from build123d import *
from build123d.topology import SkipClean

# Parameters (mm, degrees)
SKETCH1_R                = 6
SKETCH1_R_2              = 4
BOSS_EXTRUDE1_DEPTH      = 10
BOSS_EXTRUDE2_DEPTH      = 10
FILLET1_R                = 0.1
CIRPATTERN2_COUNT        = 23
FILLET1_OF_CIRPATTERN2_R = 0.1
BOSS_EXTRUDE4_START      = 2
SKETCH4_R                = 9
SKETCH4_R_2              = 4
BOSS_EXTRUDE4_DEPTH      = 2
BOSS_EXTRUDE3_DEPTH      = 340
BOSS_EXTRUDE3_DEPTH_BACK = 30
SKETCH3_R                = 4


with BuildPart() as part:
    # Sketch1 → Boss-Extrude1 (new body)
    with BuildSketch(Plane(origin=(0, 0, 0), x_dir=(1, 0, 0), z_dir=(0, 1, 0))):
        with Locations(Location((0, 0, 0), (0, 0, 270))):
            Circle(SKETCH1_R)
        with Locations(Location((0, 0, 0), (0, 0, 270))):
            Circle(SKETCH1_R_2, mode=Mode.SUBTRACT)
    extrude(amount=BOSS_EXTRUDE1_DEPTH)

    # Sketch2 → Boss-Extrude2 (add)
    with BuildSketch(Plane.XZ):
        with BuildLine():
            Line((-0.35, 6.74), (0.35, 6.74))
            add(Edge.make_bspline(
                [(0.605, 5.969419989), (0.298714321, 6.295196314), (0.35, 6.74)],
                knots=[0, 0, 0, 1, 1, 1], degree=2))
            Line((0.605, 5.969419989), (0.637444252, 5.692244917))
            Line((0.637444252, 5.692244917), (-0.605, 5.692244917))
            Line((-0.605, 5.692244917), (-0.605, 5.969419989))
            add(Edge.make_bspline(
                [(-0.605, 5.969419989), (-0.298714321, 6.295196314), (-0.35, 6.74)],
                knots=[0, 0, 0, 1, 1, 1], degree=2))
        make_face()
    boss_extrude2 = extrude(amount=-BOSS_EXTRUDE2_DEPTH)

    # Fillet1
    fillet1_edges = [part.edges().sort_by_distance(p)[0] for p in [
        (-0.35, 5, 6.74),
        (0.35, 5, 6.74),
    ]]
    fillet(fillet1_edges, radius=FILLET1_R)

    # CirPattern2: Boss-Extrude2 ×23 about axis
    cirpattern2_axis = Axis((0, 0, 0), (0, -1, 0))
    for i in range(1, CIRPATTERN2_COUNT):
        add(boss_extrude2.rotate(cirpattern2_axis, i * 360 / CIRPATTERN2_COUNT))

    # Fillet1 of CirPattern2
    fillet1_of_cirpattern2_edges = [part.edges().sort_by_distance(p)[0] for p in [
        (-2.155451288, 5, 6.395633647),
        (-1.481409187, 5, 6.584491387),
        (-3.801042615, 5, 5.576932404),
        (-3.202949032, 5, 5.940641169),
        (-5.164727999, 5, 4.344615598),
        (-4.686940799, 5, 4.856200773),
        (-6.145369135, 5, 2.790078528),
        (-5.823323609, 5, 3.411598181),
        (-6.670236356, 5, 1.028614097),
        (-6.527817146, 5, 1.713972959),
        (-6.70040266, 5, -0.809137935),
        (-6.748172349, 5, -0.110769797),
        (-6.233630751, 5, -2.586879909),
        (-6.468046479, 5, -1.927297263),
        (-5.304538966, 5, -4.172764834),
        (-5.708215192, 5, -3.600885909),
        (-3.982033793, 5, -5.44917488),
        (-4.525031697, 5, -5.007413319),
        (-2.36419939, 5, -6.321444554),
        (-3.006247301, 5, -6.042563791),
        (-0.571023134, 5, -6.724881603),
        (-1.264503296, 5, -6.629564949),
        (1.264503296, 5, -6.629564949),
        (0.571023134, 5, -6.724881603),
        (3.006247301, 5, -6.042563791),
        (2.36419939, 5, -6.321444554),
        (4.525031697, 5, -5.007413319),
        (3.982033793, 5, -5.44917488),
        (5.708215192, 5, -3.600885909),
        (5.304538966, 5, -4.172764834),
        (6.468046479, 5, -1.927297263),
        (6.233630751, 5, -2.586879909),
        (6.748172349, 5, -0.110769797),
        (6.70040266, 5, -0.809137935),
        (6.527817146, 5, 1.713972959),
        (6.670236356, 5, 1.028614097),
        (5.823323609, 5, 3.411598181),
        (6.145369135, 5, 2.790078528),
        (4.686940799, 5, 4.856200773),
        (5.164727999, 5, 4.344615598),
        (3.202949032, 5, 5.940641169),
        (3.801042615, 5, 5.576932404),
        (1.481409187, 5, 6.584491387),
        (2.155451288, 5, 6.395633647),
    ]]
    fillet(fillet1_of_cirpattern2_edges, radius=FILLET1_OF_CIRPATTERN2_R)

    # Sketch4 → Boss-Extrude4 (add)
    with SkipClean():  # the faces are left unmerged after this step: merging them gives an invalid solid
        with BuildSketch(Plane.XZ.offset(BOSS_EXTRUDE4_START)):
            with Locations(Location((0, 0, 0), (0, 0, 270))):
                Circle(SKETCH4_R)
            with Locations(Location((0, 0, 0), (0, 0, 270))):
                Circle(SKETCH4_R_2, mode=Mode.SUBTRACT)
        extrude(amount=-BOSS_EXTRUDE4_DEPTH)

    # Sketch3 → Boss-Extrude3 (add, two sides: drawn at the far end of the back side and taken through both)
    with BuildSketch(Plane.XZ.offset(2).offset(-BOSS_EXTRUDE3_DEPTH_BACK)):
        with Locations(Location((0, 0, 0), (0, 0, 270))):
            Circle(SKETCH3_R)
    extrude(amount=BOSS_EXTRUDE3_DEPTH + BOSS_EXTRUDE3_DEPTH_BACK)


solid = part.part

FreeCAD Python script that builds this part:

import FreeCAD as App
import Part
import Sketcher


def edges_at(feature, points):
    """Names of the edges that pass closest to the given points."""
    edges = feature.Shape.Edges
    near = lambda p: min(range(len(edges)), key=lambda i: edges[i].distToShape(Part.Vertex(*p))[0])
    return sorted({f"Edge{near(p) + 1}" for p in points})

doc = App.newDocument("Part")
params = doc.addObject("Spreadsheet::Sheet", "Params")
for row, (alias, value) in enumerate([
    ("sketch1_diameter", "12 mm"),
    ("sketch1_diameter2", "8 mm"),
    ("pad1_length", "10 mm"),
    ("pad2_length", "10 mm"),
    ("fillet_radius", "0.1 mm"),
    ("fillet2_radius", "0.1 mm"),
    ("sketch3_diameter", "18 mm"),
    ("sketch3_diameter2", "8 mm"),
    ("pad3_length", "2 mm"),
    ("sketch4_diameter", "8 mm"),
    ("pad4_length", "340 mm"),
    ("pad4_length2", "30 mm"),
], start=1):
    params.set(f"A{row}", alias)
    params.set(f"B{row}", "=" + value)
    params.setAlias(f"B{row}", alias)

body = doc.addObject("PartDesign::Body", "Body")

# Sketch on XZ plane
sketch1 = doc.addObject("Sketcher::SketchObject", "Sketch")
body.addObject(sketch1)
sketch1.AttachmentSupport = (doc.XZ_Plane, [""])
sketch1.MapMode = "FlatFace"
sketch1.addGeometry(Part.Circle(App.Vector(0, 0, 0), App.Vector(0, 0, 1), 6), False)
sketch1.addGeometry(Part.Circle(App.Vector(0, 0, 0), App.Vector(0, 0, 1), 4), False)
sketch1.addConstraint(Sketcher.Constraint("Coincident", 0, 3, -1, 1))
sketch1.addConstraint(Sketcher.Constraint("Coincident", 1, 3, -1, 1))
sketch1.addConstraint(Sketcher.Constraint("Diameter", 0, 12.0))
sketch1.addConstraint(Sketcher.Constraint("Diameter", 1, 8.0))
sketch1.setExpression("Constraints[2]", "Params.sketch1_diameter")
sketch1.setExpression("Constraints[3]", "Params.sketch1_diameter2")
pad1 = doc.addObject("PartDesign::Pad", "Pad")
body.addObject(pad1)
pad1.Profile = sketch1
pad1.setExpression("Length", "Params.pad1_length")
pad1.Reversed = True

# Sketch on XZ plane
sketch2 = doc.addObject("Sketcher::SketchObject", "Sketch001")
body.addObject(sketch2)
sketch2.AttachmentSupport = (doc.XZ_Plane, [""])
sketch2.MapMode = "FlatFace"
sketch2.addGeometry(Part.LineSegment(App.Vector(0.35, 6.74, 0), App.Vector(-0.35, 6.74, 0)), False)
sketch2.addGeometry(Part.BSplineCurve([App.Vector(-0.605, 5.96942, 0), App.Vector(-0.298714, 6.295196, 0), App.Vector(-0.35, 6.74, 0)], [3, 3], [0, 1], False, 2, [1, 1, 1], False), False)
sketch2.addGeometry(Part.LineSegment(App.Vector(-0.605, 5.96942, 0), App.Vector(-0.605, 5.692245, 0)), False)
sketch2.addGeometry(Part.LineSegment(App.Vector(-0.605, 5.692245, 0), App.Vector(0.637444, 5.692245, 0)), False)
sketch2.addGeometry(Part.LineSegment(App.Vector(0.637444, 5.692245, 0), App.Vector(0.605, 5.96942, 0)), False)
sketch2.addGeometry(Part.BSplineCurve([App.Vector(0.605, 5.96942, 0), App.Vector(0.298714, 6.295196, 0), App.Vector(0.35, 6.74, 0)], [3, 3], [0, 1], False, 2, [1, 1, 1], False), False)
sketch2.addConstraint(Sketcher.Constraint("Block", 1))
sketch2.addConstraint(Sketcher.Constraint("Block", 5))
sketch2.addConstraint(Sketcher.Constraint("Coincident", 0, 2, 1, 2))
sketch2.addConstraint(Sketcher.Constraint("Coincident", 1, 1, 2, 1))
sketch2.addConstraint(Sketcher.Constraint("Coincident", 2, 2, 3, 1))
sketch2.addConstraint(Sketcher.Constraint("Coincident", 3, 2, 4, 1))
sketch2.addConstraint(Sketcher.Constraint("Coincident", 4, 2, 5, 1))
sketch2.addConstraint(Sketcher.Constraint("Coincident", 5, 2, 0, 1))
sketch2.addConstraint(Sketcher.Constraint("Vertical", 2))
sketch2.addConstraint(Sketcher.Constraint("Horizontal", 3))
sketch2.addConstraint(Sketcher.Constraint("DistanceX", 3, 1, 3, 2, 1.242444))
sketch2.addConstraint(Sketcher.Constraint("DistanceY", 2, 2, 2, 1, 0.277175))
pad2 = doc.addObject("PartDesign::Pad", "Pad001")
body.addObject(pad2)
pad2.Profile = sketch2
pad2.setExpression("Length", "Params.pad2_length")
pad2.Reversed = True
doc.recompute()

fillet = doc.addObject("PartDesign::Fillet", "Fillet")
body.addObject(fillet)
fillet.Base = (pad2, edges_at(pad2, [(-0.35, 5, 6.74), (0.35, 5, 6.74)]))
fillet.setExpression("Radius", "Params.fillet_radius")
doc.recompute()

polarpattern = doc.addObject("PartDesign::PolarPattern", "PolarPattern")
body.addObject(polarpattern)
polarpattern.Originals = [pad2]
polarpattern.Axis = (doc.Y_Axis, [""])
polarpattern.Angle = 360
polarpattern.Occurrences = 23
body.Tip = polarpattern
doc.recompute()

fillet2 = doc.addObject("PartDesign::Fillet", "Fillet001")
body.addObject(fillet2)
fillet2.Base = (polarpattern, edges_at(polarpattern, [
    (-2.155, 5, 6.396),
    (-1.481, 5, 6.584),
    (-3.801, 5, 5.577),
    (-3.203, 5, 5.941),
    (-5.165, 5, 4.345),
    (-4.687, 5, 4.856),
    (-6.145, 5, 2.79),
    (-5.823, 5, 3.412),
    (-6.67, 5, 1.029),
    (-6.528, 5, 1.714),
    (-6.7, 5, -0.809),
    (-6.748, 5, -0.111),
    (-6.234, 5, -2.587),
    (-6.468, 5, -1.927),
    (-5.305, 5, -4.173),
    (-5.708, 5, -3.601),
    (-3.982, 5, -5.449),
    (-4.525, 5, -5.007),
    (-2.364, 5, -6.321),
    (-3.006, 5, -6.043),
    (-0.571, 5, -6.725),
    (-1.265, 5, -6.63),
    (1.265, 5, -6.63),
    (0.571, 5, -6.725),
    (3.006, 5, -6.043),
    (2.364, 5, -6.321),
    (4.525, 5, -5.007),
    (3.982, 5, -5.449),
    (5.708, 5, -3.601),
    (5.305, 5, -4.173),
    (6.468, 5, -1.927),
    (6.234, 5, -2.587),
    (6.748, 5, -0.111),
    (6.7, 5, -0.809),
    (6.528, 5, 1.714),
    (6.67, 5, 1.029),
    (5.823, 5, 3.412),
    (6.145, 5, 2.79),
    (4.687, 5, 4.856),
    (5.165, 5, 4.345),
    (3.203, 5, 5.941),
    (3.801, 5, 5.577),
    (1.481, 5, 6.584),
    (2.155, 5, 6.396),
]))
fillet2.setExpression("Radius", "Params.fillet2_radius")

# Sketch on XZ plane
sketch3 = doc.addObject("Sketcher::SketchObject", "Sketch002")
body.addObject(sketch3)
sketch3.AttachmentSupport = (doc.XZ_Plane, [""])
sketch3.MapMode = "FlatFace"
sketch3.AttachmentOffset = App.Placement(App.Vector(0, 0, 2), App.Rotation())
sketch3.addGeometry(Part.Circle(App.Vector(0, 0, 0), App.Vector(0, 0, 1), 9), False)
sketch3.addGeometry(Part.Circle(App.Vector(0, 0, 0), App.Vector(0, 0, 1), 4), False)
sketch3.addConstraint(Sketcher.Constraint("Coincident", 0, 3, -1, 1))
sketch3.addConstraint(Sketcher.Constraint("Coincident", 1, 3, -1, 1))
sketch3.addConstraint(Sketcher.Constraint("Diameter", 0, 18.0))
sketch3.addConstraint(Sketcher.Constraint("Diameter", 1, 8.0))
sketch3.setExpression("Constraints[2]", "Params.sketch3_diameter")
sketch3.setExpression("Constraints[3]", "Params.sketch3_diameter2")
pad3 = doc.addObject("PartDesign::Pad", "Pad002")
body.addObject(pad3)
pad3.Profile = sketch3
pad3.setExpression("Length", "Params.pad3_length")
pad3.Reversed = True

# Sketch on XZ plane
sketch4 = doc.addObject("Sketcher::SketchObject", "Sketch003")
body.addObject(sketch4)
sketch4.AttachmentSupport = (doc.XZ_Plane, [""])
sketch4.MapMode = "FlatFace"
sketch4.AttachmentOffset = App.Placement(App.Vector(0, 0, 2), App.Rotation())
sketch4.addGeometry(Part.Circle(App.Vector(0, 0, 0), App.Vector(0, 0, 1), 4), False)
sketch4.addConstraint(Sketcher.Constraint("Coincident", 0, 3, -1, 1))
sketch4.addConstraint(Sketcher.Constraint("Diameter", 0, 8.0))
sketch4.setExpression("Constraints[1]", "Params.sketch4_diameter")
pad4 = doc.addObject("PartDesign::Pad", "Pad003")
body.addObject(pad4)
pad4.Profile = sketch4
pad4.Type = "TwoLengths"
pad4.setExpression("Length", "Params.pad4_length")
pad4.setExpression("Length2", "Params.pad4_length2")

doc.recompute()
